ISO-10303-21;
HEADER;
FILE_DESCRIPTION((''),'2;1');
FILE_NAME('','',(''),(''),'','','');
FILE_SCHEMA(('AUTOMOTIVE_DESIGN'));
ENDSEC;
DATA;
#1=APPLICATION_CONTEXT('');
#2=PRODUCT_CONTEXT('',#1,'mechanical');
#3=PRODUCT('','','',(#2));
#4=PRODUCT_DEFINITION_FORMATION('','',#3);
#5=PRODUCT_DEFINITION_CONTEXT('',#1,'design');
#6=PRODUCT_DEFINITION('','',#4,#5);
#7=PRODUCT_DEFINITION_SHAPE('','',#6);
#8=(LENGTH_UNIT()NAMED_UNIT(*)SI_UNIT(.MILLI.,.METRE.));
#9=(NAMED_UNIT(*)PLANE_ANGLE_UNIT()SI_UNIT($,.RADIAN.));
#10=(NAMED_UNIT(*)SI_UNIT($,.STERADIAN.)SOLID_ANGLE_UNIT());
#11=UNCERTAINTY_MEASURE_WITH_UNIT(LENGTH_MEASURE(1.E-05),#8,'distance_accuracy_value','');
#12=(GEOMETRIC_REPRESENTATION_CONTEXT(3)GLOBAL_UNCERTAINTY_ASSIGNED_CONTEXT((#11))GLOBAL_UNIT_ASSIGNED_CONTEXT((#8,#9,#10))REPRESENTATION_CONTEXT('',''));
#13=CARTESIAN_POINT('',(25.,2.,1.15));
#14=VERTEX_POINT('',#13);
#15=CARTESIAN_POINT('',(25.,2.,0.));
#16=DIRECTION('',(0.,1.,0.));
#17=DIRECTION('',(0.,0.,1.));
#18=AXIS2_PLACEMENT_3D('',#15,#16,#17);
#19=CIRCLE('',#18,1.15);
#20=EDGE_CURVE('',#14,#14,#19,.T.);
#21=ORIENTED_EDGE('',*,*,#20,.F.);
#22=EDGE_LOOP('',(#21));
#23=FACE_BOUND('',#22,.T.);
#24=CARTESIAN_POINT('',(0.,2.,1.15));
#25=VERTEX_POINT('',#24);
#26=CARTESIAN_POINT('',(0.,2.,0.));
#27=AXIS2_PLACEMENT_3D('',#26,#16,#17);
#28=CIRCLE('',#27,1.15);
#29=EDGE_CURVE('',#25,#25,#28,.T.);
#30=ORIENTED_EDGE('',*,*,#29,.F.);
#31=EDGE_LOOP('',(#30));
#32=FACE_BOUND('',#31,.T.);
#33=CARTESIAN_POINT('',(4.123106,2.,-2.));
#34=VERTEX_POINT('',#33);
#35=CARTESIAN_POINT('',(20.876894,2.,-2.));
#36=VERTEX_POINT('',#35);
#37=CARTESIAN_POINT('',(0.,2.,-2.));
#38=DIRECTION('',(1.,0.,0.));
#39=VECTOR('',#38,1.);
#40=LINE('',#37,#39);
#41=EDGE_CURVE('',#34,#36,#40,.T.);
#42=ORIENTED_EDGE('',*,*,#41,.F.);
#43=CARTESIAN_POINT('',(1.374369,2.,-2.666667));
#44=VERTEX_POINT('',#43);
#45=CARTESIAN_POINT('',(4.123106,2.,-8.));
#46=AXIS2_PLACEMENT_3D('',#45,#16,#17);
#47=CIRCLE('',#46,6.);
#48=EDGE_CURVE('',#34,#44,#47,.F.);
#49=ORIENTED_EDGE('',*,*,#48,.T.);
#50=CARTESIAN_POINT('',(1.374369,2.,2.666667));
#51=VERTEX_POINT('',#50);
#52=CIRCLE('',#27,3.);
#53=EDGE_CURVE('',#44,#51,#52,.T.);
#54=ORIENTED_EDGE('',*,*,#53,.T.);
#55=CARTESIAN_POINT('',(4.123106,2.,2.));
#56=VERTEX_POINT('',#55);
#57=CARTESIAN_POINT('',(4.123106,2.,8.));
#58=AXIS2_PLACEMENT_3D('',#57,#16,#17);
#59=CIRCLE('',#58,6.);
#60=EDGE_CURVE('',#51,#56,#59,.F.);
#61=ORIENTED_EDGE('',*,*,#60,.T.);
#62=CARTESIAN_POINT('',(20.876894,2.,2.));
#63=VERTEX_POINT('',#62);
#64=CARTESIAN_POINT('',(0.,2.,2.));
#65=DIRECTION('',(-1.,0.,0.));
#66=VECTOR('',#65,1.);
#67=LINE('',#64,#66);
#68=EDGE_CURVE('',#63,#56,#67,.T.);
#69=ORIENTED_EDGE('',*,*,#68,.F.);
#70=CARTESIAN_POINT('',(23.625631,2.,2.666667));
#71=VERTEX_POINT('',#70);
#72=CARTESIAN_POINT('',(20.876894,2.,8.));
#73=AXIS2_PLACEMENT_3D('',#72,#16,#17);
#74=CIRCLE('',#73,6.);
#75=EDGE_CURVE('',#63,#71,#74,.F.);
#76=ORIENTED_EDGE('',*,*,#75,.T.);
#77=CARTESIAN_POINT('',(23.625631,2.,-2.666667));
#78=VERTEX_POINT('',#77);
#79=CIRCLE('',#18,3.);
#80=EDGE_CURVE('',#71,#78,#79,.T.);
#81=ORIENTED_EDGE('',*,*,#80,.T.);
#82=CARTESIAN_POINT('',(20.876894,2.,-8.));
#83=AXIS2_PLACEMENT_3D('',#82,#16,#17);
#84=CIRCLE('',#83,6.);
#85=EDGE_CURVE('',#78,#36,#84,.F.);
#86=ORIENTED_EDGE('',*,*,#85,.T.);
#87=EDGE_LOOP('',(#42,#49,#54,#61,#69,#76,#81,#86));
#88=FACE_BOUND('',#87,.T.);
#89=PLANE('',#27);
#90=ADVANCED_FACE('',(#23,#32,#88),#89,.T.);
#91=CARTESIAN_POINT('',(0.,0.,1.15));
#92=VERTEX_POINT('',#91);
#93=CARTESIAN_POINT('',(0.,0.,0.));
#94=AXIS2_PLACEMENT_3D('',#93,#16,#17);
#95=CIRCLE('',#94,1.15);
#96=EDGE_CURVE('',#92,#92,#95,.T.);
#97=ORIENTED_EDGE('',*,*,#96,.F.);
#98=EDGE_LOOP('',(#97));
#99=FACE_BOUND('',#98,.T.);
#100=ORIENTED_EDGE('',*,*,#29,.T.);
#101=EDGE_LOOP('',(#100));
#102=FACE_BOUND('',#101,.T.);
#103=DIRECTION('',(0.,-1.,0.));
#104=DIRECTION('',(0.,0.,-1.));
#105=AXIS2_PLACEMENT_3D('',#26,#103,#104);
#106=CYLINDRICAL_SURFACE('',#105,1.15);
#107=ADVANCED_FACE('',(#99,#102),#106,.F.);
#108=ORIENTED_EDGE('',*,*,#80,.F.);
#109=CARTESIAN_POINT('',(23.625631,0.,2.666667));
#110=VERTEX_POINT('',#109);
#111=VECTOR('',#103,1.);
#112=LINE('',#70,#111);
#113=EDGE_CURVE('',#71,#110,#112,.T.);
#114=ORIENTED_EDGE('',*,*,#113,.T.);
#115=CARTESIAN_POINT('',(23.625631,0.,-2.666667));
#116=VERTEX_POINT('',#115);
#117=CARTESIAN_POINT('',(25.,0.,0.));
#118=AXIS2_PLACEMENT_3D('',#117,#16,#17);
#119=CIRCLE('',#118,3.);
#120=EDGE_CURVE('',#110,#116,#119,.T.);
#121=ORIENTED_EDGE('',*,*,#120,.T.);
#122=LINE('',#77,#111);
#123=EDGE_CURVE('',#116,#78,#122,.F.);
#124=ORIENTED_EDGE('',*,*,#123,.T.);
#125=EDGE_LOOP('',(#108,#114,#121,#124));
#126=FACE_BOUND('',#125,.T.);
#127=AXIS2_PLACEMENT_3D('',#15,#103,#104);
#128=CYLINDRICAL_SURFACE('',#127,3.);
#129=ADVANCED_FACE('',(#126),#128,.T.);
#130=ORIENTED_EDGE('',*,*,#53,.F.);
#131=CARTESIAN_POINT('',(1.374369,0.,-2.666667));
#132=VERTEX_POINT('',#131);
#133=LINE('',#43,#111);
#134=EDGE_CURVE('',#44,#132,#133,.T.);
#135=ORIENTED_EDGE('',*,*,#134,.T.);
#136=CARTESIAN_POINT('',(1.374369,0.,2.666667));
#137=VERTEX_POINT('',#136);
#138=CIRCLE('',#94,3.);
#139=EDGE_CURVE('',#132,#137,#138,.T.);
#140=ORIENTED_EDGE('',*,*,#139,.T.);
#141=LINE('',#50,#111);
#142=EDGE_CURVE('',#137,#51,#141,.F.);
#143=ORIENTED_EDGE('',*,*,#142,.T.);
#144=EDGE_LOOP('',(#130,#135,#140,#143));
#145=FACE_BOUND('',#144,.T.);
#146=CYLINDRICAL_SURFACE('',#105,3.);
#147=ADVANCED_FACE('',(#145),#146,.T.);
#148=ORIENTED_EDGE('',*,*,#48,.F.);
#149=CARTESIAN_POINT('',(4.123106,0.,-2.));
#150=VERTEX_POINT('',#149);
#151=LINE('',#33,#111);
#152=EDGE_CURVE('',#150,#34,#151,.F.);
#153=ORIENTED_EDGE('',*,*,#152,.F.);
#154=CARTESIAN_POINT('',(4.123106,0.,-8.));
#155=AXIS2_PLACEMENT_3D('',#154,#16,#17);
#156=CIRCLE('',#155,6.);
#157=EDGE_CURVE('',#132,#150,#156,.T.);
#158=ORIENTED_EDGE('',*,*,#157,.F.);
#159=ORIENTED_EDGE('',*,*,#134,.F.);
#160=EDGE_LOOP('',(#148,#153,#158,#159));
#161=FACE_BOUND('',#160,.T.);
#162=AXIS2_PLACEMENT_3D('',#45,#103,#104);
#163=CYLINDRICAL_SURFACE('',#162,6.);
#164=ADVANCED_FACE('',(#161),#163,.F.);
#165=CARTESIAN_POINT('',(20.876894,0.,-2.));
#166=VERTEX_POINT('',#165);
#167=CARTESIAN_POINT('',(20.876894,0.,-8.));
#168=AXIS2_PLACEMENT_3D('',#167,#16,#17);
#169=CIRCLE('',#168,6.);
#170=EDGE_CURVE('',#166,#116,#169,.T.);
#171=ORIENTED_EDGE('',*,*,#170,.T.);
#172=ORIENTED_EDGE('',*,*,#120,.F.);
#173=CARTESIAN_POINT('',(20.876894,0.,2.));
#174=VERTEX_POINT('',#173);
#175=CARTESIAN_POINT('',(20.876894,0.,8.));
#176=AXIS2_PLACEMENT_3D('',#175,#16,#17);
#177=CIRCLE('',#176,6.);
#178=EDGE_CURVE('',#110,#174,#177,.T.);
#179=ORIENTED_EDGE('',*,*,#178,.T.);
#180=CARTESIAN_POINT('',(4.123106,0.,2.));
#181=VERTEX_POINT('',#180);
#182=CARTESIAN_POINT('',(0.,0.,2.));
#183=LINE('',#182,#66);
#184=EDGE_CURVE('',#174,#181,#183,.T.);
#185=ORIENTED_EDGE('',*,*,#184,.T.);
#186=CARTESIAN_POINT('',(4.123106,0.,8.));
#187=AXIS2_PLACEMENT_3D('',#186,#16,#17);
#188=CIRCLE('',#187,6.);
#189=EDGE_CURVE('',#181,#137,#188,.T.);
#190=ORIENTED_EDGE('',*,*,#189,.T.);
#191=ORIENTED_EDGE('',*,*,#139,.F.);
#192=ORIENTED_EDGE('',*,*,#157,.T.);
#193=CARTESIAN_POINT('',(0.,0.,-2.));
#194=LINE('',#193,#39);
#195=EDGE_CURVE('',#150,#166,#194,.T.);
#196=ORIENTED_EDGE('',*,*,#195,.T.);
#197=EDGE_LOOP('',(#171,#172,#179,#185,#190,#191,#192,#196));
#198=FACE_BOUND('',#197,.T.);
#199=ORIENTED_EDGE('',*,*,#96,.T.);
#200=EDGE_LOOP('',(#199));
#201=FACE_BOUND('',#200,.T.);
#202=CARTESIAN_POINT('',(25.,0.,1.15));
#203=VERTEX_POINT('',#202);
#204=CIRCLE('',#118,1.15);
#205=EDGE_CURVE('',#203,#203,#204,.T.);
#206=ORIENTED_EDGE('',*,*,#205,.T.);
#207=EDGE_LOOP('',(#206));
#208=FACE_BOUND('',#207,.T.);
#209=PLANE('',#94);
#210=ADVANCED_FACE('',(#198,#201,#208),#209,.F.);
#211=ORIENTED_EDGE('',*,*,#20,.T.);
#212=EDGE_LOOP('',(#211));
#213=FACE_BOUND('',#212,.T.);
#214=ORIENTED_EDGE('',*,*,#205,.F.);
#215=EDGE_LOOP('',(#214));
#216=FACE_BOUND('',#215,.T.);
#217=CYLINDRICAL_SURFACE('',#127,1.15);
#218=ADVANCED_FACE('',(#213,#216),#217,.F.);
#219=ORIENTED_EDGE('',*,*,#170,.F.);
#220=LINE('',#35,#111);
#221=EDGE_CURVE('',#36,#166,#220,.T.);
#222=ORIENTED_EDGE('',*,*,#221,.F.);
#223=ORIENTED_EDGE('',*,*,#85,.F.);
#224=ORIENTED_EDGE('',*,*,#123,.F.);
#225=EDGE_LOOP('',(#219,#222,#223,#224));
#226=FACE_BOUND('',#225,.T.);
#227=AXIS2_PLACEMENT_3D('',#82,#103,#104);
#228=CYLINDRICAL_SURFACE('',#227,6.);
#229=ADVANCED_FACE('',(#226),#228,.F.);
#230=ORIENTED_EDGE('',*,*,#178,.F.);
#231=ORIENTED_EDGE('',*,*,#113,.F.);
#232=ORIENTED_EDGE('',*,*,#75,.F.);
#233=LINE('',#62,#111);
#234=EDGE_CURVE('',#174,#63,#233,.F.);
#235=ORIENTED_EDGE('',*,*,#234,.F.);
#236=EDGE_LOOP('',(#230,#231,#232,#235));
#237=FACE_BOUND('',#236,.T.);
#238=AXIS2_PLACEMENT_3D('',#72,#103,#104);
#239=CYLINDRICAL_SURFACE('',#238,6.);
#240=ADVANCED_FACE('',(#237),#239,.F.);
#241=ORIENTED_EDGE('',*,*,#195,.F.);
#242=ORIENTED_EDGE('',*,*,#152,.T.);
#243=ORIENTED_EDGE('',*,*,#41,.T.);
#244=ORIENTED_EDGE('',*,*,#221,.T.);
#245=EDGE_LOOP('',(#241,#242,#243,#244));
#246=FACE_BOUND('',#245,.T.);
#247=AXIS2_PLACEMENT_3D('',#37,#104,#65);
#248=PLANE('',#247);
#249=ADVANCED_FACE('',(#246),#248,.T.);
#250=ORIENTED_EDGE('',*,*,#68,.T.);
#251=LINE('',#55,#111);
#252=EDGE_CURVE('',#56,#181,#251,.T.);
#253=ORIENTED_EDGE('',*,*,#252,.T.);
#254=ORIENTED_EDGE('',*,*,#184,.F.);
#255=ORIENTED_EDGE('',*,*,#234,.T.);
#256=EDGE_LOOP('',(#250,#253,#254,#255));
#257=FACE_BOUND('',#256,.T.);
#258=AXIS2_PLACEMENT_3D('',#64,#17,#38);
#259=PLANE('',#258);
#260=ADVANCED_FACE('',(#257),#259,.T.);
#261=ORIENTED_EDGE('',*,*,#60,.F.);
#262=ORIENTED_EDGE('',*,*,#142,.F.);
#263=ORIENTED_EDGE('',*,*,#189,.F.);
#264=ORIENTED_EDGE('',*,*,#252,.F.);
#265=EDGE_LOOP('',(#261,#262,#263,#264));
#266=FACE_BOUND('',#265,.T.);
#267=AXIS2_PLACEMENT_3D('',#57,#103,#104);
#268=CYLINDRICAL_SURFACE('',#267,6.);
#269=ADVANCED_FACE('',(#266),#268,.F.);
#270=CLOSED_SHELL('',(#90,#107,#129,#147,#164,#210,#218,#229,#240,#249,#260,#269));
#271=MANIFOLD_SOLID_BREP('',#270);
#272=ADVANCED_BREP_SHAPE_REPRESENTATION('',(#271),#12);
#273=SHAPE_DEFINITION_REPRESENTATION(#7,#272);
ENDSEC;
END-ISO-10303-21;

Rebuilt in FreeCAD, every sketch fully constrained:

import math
import FreeCAD as App
import Part
import Sketcher


def edges_at(feature, points):
    """Names of the edges that pass closest to the given points."""
    edges = feature.Shape.Edges
    near = lambda p: min(range(len(edges)), key=lambda i: edges[i].distToShape(Part.Vertex(*p))[0])
    return sorted({f"Edge{near(p) + 1}" for p in points})

doc = App.newDocument("Part")
params = doc.addObject("Spreadsheet::Sheet", "Params")
for row, (alias, value) in enumerate([
    ("sketch1_radius", "3 mm"),
    ("sketch1_diameter", "2.3 mm"),
    ("pad1_length", "2 mm"),
    ("fillet_radius", "6 mm"),
], start=1):
    params.set(f"A{row}", alias)
    params.set(f"B{row}", "=" + value)
    params.setAlias(f"B{row}", alias)

body = doc.addObject("PartDesign::Body", "Body")

sketch1 = body.newObject("Sketcher::SketchObject", "Sketch")
sketch1.AttachmentSupport = (doc.getObject("XZ_Plane"), [""])
sketch1.MapMode = "FlatFace"
sketch1.addGeometry(Part.LineSegment(App.Vector(22.8, -2, 0), App.Vector(2.2, -2, 0)), False)
sketch1.addGeometry(Part.ArcOfCircle(Part.Circle(App.Vector(0, 0, 0), App.Vector(0, 0, 1), 3), math.radians(42), math.radians(318)), False)
sketch1.addGeometry(Part.LineSegment(App.Vector(2.2, 2, 0), App.Vector(22.8, 2, 0)), False)
sketch1.addGeometry(Part.ArcOfCircle(Part.Circle(App.Vector(25, 0, 0), App.Vector(0, 0, 1), 3), math.radians(-138), math.radians(138)), False)
sketch1.addGeometry(Part.Circle(App.Vector(25, 0, 0), App.Vector(0, 0, 1), 1.1), False)
sketch1.addGeometry(Part.Circle(App.Vector(0, 0, 0), App.Vector(0, 0, 1), 1.1), False)
sketch1.addConstraint(Sketcher.Constraint("Coincident", 0, 2, 1, 2))
sketch1.addConstraint(Sketcher.Constraint("Coincident", 1, 1, 2, 1))
sketch1.addConstraint(Sketcher.Constraint("Coincident", 2, 2, 3, 2))
sketch1.addConstraint(Sketcher.Constraint("Coincident", 3, 1, 0, 1))
sketch1.addConstraint(Sketcher.Constraint("Horizontal", 0))
sketch1.addConstraint(Sketcher.Constraint("Horizontal", 2))
sketch1.addConstraint(Sketcher.Constraint("Coincident", 1, 3, -1, 1))
sketch1.addConstraint(Sketcher.Constraint("Coincident", 5, 3, -1, 1))
sketch1.addConstraint(Sketcher.Constraint("Coincident", 4, 3, 3, 3))
sketch1.addConstraint(Sketcher.Constraint("Equal", 1, 3))
sketch1.addConstraint(Sketcher.Constraint("Equal", 4, 5))
sketch1.addConstraint(Sketcher.Constraint("Symmetric", 2, 2, 3, 1, -1))
sketch1.addConstraint(Sketcher.Constraint("Radius", 1, 3.0))
sketch1.addConstraint(Sketcher.Constraint("Diameter", 4, 2.3))
sketch1.addConstraint(Sketcher.Constraint("DistanceX", -1, 1, 3, 3, 25.0))
sketch1.addConstraint(Sketcher.Constraint("DistanceY", 0, 2, -1, 1, 2.0))
sketch1.setExpression("Constraints[12]", "Params.sketch1_radius")
sketch1.setExpression("Constraints[13]", "Params.sketch1_diameter")
pad1 = body.newObject("PartDesign::Pad", "Pad")
pad1.Profile = sketch1
pad1.setExpression("Length", "Params.pad1_length")
pad1.Reversed = True
doc.recompute()

fillet = body.newObject("PartDesign::Fillet", "Fillet")
fillet.Base = (pad1, edges_at(pad1, [
    (2.236, 1, 2),
    (2.236, 1, -2),
    (22.764, 1, -2),
    (22.764, 1, 2),
]))
fillet.setExpression("Radius", "Params.fillet_radius")

doc.recompute()
